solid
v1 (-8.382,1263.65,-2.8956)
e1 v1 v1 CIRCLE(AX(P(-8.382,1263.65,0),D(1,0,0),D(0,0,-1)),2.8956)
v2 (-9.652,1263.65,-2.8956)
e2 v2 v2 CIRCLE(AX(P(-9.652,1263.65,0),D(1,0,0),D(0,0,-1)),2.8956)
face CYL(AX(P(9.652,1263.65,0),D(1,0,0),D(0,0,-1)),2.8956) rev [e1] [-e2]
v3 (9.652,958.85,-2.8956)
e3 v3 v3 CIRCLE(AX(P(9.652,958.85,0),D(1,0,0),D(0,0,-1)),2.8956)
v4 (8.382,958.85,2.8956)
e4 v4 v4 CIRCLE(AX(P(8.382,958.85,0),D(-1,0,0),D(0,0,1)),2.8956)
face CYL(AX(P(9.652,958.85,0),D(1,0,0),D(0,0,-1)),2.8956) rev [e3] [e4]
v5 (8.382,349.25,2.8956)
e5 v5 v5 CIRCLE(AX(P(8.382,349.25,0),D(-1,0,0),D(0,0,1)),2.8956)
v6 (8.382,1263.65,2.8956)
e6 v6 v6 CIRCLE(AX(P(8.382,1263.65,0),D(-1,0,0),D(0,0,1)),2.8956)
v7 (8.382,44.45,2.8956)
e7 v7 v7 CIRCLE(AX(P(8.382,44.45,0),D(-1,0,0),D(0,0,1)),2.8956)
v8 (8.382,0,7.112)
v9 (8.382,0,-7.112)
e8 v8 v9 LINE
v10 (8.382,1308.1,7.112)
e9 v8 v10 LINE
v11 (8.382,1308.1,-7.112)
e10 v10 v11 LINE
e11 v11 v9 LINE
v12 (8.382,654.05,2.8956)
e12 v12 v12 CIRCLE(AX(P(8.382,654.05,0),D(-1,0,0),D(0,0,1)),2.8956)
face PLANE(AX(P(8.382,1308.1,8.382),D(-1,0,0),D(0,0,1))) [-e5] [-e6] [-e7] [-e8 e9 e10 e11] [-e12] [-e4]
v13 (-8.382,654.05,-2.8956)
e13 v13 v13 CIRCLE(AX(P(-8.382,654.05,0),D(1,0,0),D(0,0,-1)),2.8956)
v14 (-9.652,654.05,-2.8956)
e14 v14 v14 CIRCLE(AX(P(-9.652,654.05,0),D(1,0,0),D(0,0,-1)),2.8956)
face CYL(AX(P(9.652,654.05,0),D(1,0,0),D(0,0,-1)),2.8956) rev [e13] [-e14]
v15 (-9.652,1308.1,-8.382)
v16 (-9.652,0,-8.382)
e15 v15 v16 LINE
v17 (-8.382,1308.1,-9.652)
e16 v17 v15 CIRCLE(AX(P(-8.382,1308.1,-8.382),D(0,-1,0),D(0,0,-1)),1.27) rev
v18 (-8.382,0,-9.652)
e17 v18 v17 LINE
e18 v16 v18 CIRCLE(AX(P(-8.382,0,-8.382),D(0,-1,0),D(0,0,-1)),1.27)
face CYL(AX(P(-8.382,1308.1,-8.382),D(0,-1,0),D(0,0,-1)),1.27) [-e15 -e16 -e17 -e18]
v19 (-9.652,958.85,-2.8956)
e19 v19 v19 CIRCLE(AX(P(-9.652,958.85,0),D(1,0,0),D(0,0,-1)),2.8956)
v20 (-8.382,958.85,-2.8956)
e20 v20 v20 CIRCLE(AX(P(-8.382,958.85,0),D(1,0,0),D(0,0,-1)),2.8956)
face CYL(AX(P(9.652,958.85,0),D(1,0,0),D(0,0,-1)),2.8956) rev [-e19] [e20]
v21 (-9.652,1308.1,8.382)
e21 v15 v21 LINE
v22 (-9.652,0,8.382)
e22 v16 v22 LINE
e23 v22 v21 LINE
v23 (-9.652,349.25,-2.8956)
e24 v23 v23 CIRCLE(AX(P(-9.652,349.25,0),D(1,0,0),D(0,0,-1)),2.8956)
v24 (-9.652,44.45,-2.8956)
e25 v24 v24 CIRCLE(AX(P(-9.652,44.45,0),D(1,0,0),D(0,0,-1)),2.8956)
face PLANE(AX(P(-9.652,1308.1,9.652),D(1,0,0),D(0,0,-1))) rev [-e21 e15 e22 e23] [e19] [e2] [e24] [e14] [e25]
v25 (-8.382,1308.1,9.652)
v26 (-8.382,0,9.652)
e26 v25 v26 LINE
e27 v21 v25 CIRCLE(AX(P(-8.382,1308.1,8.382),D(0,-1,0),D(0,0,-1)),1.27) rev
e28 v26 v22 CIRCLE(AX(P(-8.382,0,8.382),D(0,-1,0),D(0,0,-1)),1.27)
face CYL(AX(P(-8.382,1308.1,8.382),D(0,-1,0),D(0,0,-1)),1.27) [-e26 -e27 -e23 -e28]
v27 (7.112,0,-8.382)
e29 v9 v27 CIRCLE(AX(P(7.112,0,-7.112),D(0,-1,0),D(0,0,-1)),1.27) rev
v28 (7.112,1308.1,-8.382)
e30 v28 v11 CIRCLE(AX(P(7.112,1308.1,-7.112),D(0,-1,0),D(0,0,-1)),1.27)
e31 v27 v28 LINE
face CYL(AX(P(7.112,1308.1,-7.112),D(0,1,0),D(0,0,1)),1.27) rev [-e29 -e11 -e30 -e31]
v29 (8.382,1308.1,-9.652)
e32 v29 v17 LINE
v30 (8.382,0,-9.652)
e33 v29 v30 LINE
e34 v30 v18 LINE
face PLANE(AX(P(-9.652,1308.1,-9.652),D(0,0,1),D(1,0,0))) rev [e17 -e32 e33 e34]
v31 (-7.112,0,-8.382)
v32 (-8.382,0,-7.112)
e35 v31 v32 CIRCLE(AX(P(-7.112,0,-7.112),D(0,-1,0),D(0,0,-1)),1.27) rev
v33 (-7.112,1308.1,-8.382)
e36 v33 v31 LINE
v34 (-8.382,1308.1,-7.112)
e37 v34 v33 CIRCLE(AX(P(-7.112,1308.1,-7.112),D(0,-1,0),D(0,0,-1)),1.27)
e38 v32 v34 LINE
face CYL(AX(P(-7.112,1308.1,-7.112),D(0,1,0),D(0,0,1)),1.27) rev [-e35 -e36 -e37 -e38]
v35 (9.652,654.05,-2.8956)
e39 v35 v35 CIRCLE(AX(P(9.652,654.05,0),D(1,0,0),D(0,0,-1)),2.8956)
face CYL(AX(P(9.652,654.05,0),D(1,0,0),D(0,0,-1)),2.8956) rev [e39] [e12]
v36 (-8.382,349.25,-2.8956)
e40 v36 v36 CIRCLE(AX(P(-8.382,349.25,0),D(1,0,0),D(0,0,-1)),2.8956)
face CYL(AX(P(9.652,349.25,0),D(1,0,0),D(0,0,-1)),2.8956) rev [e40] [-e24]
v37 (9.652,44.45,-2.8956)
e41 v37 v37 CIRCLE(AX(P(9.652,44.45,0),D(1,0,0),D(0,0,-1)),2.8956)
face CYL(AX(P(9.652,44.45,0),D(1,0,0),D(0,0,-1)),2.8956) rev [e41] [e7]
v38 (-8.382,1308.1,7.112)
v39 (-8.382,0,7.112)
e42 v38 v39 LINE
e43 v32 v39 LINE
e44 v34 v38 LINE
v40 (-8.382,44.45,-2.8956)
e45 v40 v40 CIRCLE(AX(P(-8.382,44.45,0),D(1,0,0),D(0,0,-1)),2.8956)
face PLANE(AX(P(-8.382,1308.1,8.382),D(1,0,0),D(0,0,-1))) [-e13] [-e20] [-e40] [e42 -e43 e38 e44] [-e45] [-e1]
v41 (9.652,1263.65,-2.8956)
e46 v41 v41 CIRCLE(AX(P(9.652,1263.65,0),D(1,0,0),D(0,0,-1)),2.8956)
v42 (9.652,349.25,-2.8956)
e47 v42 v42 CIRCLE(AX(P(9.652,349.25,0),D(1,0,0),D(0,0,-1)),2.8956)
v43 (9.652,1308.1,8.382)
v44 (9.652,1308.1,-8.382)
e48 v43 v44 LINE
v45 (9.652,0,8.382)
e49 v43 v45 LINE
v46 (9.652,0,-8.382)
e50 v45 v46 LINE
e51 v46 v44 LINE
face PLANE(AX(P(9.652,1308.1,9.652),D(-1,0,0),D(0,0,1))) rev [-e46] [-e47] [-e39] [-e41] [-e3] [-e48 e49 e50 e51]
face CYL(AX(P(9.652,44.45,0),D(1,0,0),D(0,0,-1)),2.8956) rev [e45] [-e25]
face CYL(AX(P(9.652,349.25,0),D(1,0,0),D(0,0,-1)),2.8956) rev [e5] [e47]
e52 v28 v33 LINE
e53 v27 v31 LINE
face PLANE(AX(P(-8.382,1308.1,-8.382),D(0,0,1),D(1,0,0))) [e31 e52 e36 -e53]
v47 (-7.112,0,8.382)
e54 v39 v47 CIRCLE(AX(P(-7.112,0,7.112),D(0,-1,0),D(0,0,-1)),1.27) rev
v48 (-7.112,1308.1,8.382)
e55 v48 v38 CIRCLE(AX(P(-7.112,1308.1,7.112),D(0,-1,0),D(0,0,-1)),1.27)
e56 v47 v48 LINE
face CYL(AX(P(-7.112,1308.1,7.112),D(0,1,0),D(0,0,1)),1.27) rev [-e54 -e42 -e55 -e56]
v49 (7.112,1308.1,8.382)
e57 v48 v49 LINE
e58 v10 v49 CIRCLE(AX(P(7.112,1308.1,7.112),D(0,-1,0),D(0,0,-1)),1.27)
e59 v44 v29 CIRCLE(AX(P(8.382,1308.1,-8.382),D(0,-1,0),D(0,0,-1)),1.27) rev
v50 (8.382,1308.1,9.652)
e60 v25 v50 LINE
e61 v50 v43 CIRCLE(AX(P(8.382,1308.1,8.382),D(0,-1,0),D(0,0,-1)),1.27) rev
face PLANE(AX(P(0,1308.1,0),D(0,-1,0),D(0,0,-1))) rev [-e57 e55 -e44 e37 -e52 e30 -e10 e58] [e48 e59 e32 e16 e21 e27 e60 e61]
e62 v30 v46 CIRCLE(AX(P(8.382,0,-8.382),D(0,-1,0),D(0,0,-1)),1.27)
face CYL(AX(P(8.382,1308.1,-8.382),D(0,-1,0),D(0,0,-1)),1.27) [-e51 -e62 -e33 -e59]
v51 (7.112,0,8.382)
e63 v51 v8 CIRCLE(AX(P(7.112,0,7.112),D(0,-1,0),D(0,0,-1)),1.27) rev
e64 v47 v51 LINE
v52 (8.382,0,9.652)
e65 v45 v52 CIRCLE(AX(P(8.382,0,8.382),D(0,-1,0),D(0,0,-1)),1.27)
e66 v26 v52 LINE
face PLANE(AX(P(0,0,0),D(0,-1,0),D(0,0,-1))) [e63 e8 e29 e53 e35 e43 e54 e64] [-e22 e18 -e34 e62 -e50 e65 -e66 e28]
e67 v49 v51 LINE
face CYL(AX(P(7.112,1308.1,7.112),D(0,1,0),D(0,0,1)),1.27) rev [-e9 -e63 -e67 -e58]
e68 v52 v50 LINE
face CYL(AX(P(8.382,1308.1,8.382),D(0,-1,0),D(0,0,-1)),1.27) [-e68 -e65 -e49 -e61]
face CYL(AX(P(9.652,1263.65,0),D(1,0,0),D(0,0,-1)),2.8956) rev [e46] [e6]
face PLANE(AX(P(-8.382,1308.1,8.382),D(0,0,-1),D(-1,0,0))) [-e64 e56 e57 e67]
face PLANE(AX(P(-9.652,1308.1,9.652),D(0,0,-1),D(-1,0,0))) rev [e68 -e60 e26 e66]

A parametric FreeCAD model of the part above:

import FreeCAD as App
import Part
import Sketcher
from FreeCAD import Vector
Q = App.Units.Quantity


def edges_at(feature, points):
    """Names of the edges that pass closest to the given points."""
    edges = feature.Shape.Edges
    near = lambda p: min(range(len(edges)), key=lambda i: edges[i].distToShape(Part.Vertex(*p))[0])
    return sorted({f"Edge{near(p) + 1}" for p in points})

doc = App.newDocument("Part")
params = doc.addObject("Spreadsheet::Sheet", "Params")
for row, (alias, value) in enumerate([
    ("sketch1_width", "0.76 in"),
    ("sketch1_width2", "0.66 in"),
    ("pad1_length", "51.5 in"),
    ("fillet_radius", "0.05 in"),
    ("sketch2_diameter", "0.228 in"),
    ("hole_diameter", "0.228 in"),
], start=1):
    params.set(f"A{row}", alias)
    params.set(f"B{row}", "=" + value)
    params.setAlias(f"B{row}", alias)

body = doc.addObject("PartDesign::Body", "Body")

# Sketch on XZ plane
sketch1 = doc.addObject("Sketcher::SketchObject", "Sketch")
body.addObject(sketch1)
sketch1.AttachmentSupport = (doc.XZ_Plane, [""])
sketch1.MapMode = "FlatFace"
sketch1.addGeometry(Part.LineSegment(Vector(-10, -10, 0), Vector(-10, 10, 0)), False)
sketch1.addGeometry(Part.LineSegment(Vector(-10, 10, 0), Vector(10, 10, 0)), False)
sketch1.addGeometry(Part.LineSegment(Vector(10, 10, 0), Vector(10, -10, 0)), False)
sketch1.addGeometry(Part.LineSegment(Vector(10, -10, 0), Vector(-10, -10, 0)), False)
sketch1.addGeometry(Part.LineSegment(Vector(8, 8, 0), Vector(-8, 8, 0)), False)
sketch1.addGeometry(Part.LineSegment(Vector(-8, 8, 0), Vector(-8, -8, 0)), False)
sketch1.addGeometry(Part.LineSegment(Vector(-8, -8, 0), Vector(8, -8, 0)), False)
sketch1.addGeometry(Part.LineSegment(Vector(8, -8, 0), Vector(8, 8, 0)), False)
sketch1.addConstraint(Sketcher.Constraint("Coincident", 0, 2, 1, 1))
sketch1.addConstraint(Sketcher.Constraint("Coincident", 1, 2, 2, 1))
sketch1.addConstraint(Sketcher.Constraint("Coincident", 2, 2, 3, 1))
sketch1.addConstraint(Sketcher.Constraint("Coincident", 3, 2, 0, 1))
sketch1.addConstraint(Sketcher.Constraint("Coincident", 4, 2, 5, 1))
sketch1.addConstraint(Sketcher.Constraint("Coincident", 5, 2, 6, 1))
sketch1.addConstraint(Sketcher.Constraint("Coincident", 6, 2, 7, 1))
sketch1.addConstraint(Sketcher.Constraint("Coincident", 7, 2, 4, 1))
sketch1.addConstraint(Sketcher.Constraint("Vertical", 0))
sketch1.addConstraint(Sketcher.Constraint("Horizontal", 1))
sketch1.addConstraint(Sketcher.Constraint("Vertical", 2))
sketch1.addConstraint(Sketcher.Constraint("Horizontal", 3))
sketch1.addConstraint(Sketcher.Constraint("Horizontal", 4))
sketch1.addConstraint(Sketcher.Constraint("Vertical", 5))
sketch1.addConstraint(Sketcher.Constraint("Horizontal", 6))
sketch1.addConstraint(Sketcher.Constraint("Vertical", 7))
sketch1.addConstraint(Sketcher.Constraint("Symmetric", 0, 2, 2, 2, -1, 1))
sketch1.addConstraint(Sketcher.Constraint("Symmetric", 4, 2, 6, 2, -1, 1))
sketch1.addConstraint(Sketcher.Constraint("Equal", 3, 0))
sketch1.addConstraint(Sketcher.Constraint("Equal", 6, 5))
sketch1.addConstraint(Sketcher.Constraint("DistanceX", 1, 1, 1, 2, Q("0.76 in")))
sketch1.addConstraint(Sketcher.Constraint("DistanceX", 4, 2, 4, 1, Q("0.66 in")))
sketch1.setExpression("Constraints[20]", "Params.sketch1_width")
sketch1.setExpression("Constraints[21]", "Params.sketch1_width2")
pad1 = doc.addObject("PartDesign::Pad", "Pad")
body.addObject(pad1)
pad1.Profile = sketch1
pad1.setExpression("Length", "Params.pad1_length")
pad1.Reversed = True
doc.recompute()

fillet = doc.addObject("PartDesign::Fillet", "Fillet")
body.addObject(fillet)
fillet.Base = (pad1, edges_at(pad1, [
    (-8.382, 654.05, 8.382),
    (8.382, 654.05, 8.382),
    (8.382, 654.05, -8.382),
    (-8.382, 654.05, -8.382),
    (9.652, 654.05, 9.652),
    (-9.652, 654.05, 9.652),
    (-9.652, 654.05, -9.652),
    (9.652, 654.05, -9.652),
]))
fillet.setExpression("Radius", "Params.fillet_radius")

# Sketch on YZ plane
sketch2 = doc.addObject("Sketcher::SketchObject", "Sketch001")
body.addObject(sketch2)
sketch2.AttachmentSupport = (doc.YZ_Plane, [""])
sketch2.MapMode = "FlatFace"
sketch2.AttachmentOffset = App.Placement(Vector(0, 0, 0.38 * 25.4), App.Rotation())
sketch2.addGeometry(Part.Circle(Vector(44.5, 0, 0), Vector(0, 0, 1), 2.9), False)
sketch2.addGeometry(Part.Circle(Vector(1263.7, 0, 0), Vector(0, 0, 1), 2.9), False)
sketch2.addGeometry(Part.Circle(Vector(958.9, 0, 0), Vector(0, 0, 1), 2.9), False)
sketch2.addGeometry(Part.Circle(Vector(654, 0, 0), Vector(0, 0, 1), 2.9), False)
sketch2.addGeometry(Part.Circle(Vector(349.2, 0, 0), Vector(0, 0, 1), 2.9), False)
sketch2.addConstraint(Sketcher.Constraint("Equal", 0, 1))
sketch2.addConstraint(Sketcher.Constraint("Equal", 1, 2))
sketch2.addConstraint(Sketcher.Constraint("Equal", 2, 3))
sketch2.addConstraint(Sketcher.Constraint("Equal", 3, 4))
sketch2.addConstraint(Sketcher.Constraint("PointOnObject", 0, 3, -1))
sketch2.addConstraint(Sketcher.Constraint("PointOnObject", 1, 3, -1))
sketch2.addConstraint(Sketcher.Constraint("PointOnObject", 2, 3, -1))
sketch2.addConstraint(Sketcher.Constraint("PointOnObject", 3, 3, -1))
sketch2.addConstraint(Sketcher.Constraint("PointOnObject", 4, 3, -1))
sketch2.addConstraint(Sketcher.Constraint("Diameter", 0, Q("0.228 in")))
sketch2.addConstraint(Sketcher.Constraint("DistanceX", 0, 3, 1, 3, Q("48 in")))
sketch2.addConstraint(Sketcher.Constraint("DistanceX", 2, 3, 1, 3, Q("12 in")))
sketch2.addConstraint(Sketcher.Constraint("DistanceX", 3, 3, 2, 3, Q("12 in")))
sketch2.addConstraint(Sketcher.Constraint("DistanceX", 4, 3, 3, 3, Q("12 in")))
sketch2.addConstraint(Sketcher.Constraint("DistanceX", -1, 1, 0, 3, Q("1.75 in")))
sketch2.setExpression("Constraints[9]", "Params.sketch2_diameter")
doc.recompute()
hole = doc.addObject("PartDesign::Hole", "Hole")
body.addObject(hole)
hole.Profile = sketch2
hole.ThreadType = "None"
hole.setExpression("Diameter", "Params.hole_diameter")
hole.DepthType = "ThroughAll"

doc.recompute()
